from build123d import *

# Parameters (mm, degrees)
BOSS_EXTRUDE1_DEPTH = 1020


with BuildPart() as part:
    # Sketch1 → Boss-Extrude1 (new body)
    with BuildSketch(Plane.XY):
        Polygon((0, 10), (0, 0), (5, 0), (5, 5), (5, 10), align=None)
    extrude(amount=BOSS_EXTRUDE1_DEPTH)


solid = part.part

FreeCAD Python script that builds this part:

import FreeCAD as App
import Part
import Sketcher
Q = App.Units.Quantity


def add_polygon(sketch, points):
    """Adds a closed chain of lines whose ends are joined by coincident constraints."""
    first, n = sketch.GeometryCount, len(points)
    for a, b in zip(points, points[1:] + points[:1]):
        sketch.addGeometry(Part.LineSegment(App.Vector(*a, 0), App.Vector(*b, 0)), False)
    for i in range(n):
        sketch.addConstraint(Sketcher.Constraint("Coincident", first + i, 2, first + (i + 1) % n, 1))

doc = App.newDocument("Part")
body = doc.addObject("PartDesign::Body", "Body")

# Sketch on XY plane
sketch1 = body.newObject("Sketcher::SketchObject", "Sketch")
sketch1.AttachmentSupport = (doc.getObject("XY_Plane"), [""])
sketch1.MapMode = "FlatFace"
add_polygon(sketch1, [(0, 10), (0, 0), (5, 0), (5, 10)])  # lines 0-3
sketch1.addConstraint([
    Sketcher.Constraint("Vertical", 0),
    Sketcher.Constraint("Horizontal", 1),
    Sketcher.Constraint("Vertical", 2),
    Sketcher.Constraint("Horizontal", 3),
    Sketcher.Constraint("Coincident", 0, 2, -1, 1),
    Sketcher.Constraint("DistanceX", 1, 1, 1, 2, Q("5 mm")),
    Sketcher.Constraint("DistanceY", 0, 2, 0, 1, Q("10 mm")),
])
pad1 = body.newObject("PartDesign::Pad", "Pad")
pad1.Profile = sketch1
pad1.Length = 1020

doc.recompute()
